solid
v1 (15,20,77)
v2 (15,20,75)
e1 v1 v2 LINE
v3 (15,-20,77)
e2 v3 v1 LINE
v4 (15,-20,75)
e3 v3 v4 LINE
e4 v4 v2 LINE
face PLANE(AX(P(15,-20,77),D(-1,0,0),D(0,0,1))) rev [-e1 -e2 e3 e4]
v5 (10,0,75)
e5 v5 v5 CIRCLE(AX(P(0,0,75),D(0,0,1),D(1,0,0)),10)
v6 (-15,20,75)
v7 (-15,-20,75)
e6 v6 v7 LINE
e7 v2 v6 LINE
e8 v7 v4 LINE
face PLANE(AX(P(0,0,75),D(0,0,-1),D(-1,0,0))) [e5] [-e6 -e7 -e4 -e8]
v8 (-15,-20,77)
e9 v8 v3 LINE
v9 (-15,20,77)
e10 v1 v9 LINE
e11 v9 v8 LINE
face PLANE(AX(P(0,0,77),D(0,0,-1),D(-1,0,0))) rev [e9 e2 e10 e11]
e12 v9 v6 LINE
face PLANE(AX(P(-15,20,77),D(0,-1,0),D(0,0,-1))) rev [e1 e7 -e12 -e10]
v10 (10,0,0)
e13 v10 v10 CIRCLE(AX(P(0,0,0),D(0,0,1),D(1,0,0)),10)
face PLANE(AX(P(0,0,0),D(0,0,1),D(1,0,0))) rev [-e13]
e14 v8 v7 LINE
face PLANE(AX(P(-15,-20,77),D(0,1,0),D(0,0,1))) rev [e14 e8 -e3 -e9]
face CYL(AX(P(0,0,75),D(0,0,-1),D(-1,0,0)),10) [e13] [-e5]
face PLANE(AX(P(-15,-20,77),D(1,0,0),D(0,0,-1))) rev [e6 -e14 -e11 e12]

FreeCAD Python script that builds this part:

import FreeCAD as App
import Part
import Sketcher
from FreeCAD import Vector
Q = App.Units.Quantity

doc = App.newDocument("Part")
params = doc.addObject("Spreadsheet::Sheet", "Params")
for row, (alias, value) in enumerate([
    ("sketch1_diameter", "20 mm"),
    ("pad1_length", "75 mm"),
    ("sketch2_width", "30 mm"),
    ("sketch2_height", "40 mm"),
    ("pad2_length", "2 mm"),
], start=1):
    params.set(f"A{row}", alias)
    params.set(f"B{row}", "=" + value)
    params.setAlias(f"B{row}", alias)

body = doc.addObject("PartDesign::Body", "Body")

# Sketch on XY plane
sketch1 = body.newObject("Sketcher::SketchObject", "Sketch")
sketch1.AttachmentSupport = (doc.getObject("XY_Plane"), [""])
sketch1.MapMode = "FlatFace"
sketch1.addGeometry(Part.Circle(Vector(0, 0, 0), Vector(0, 0, 1), 10), False)
sketch1.addConstraint([
    Sketcher.Constraint("Coincident", 0, 3, -1, 1),
    Sketcher.Constraint("Diameter", 0, Q("20 mm")),
])
sketch1.setExpression("Constraints[1]", "Params.sketch1_diameter")
pad1 = body.newObject("PartDesign::Pad", "Pad")
pad1.Profile = sketch1
pad1.setExpression("Length", "Params.pad1_length")

# Sketch on XY plane
sketch2 = body.newObject("Sketcher::SketchObject", "Sketch001")
sketch2.AttachmentSupport = (doc.getObject("XY_Plane"), [""])
sketch2.MapMode = "FlatFace"
sketch2.AttachmentOffset = App.Placement(Vector(0, 0, 75), App.Rotation())
sketch2.addGeometry([
    Part.LineSegment(Vector(-15, 20, 0), Vector(-15, -20, 0)),
    Part.LineSegment(Vector(-15, -20, 0), Vector(15, -20, 0)),
    Part.LineSegment(Vector(15, -20, 0), Vector(15, 20, 0)),
    Part.LineSegment(Vector(15, 20, 0), Vector(-15, 20, 0)),
], False)
sketch2.addConstraint([
    Sketcher.Constraint("Coincident", 0, 2, 1, 1),
    Sketcher.Constraint("Coincident", 1, 2, 2, 1),
    Sketcher.Constraint("Coincident", 2, 2, 3, 1),
    Sketcher.Constraint("Coincident", 3, 2, 0, 1),
    Sketcher.Constraint("Vertical", 0),
    Sketcher.Constraint("Horizontal", 1),
    Sketcher.Constraint("Vertical", 2),
    Sketcher.Constraint("Horizontal", 3),
    Sketcher.Constraint("Symmetric", 0, 2, 2, 2, -1, 1),
    Sketcher.Constraint("DistanceX", 1, 1, 1, 2, Q("30 mm")),
    Sketcher.Constraint("DistanceY", 0, 2, 0, 1, Q("40 mm")),
])
sketch2.setExpression("Constraints[9]", "Params.sketch2_width")
sketch2.setExpression("Constraints[10]", "Params.sketch2_height")
pad2 = body.newObject("PartDesign::Pad", "Pad001")
pad2.Profile = sketch2
pad2.setExpression("Length", "Params.pad2_length")

doc.recompute()
